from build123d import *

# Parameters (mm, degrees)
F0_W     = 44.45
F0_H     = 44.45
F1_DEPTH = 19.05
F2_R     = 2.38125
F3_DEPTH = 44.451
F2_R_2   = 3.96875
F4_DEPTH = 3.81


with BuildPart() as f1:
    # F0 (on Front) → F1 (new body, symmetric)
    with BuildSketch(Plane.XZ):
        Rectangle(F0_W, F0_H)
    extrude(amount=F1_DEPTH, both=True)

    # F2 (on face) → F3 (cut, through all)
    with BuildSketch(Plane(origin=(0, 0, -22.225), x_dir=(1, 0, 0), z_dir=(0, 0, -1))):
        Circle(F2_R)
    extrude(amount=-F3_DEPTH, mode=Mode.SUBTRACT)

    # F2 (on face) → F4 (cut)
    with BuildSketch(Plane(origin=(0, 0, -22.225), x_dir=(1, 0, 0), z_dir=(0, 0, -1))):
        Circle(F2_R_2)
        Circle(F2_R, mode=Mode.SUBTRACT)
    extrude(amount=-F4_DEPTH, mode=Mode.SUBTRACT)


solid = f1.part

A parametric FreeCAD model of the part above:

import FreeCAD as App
import Part
import Sketcher
from FreeCAD import Vector
Q = App.Units.Quantity

doc = App.newDocument("Part")
params = doc.addObject("Spreadsheet::Sheet", "Params")
for row, (alias, value) in enumerate([
    ("sketch1_width", "1.75 in"),
    ("pad1_length", "1.5 in"),
    ("sketch2_diameter", "0.1875 in"),
    ("sketch3_diameter", "0.3125 in"),
    ("sketch3_diameter2", "0.1875 in"),
    ("pocket2_length", "0.15 in"),
], start=1):
    params.set(f"A{row}", alias)
    params.set(f"B{row}", "=" + value)
    params.setAlias(f"B{row}", alias)

body = doc.addObject("PartDesign::Body", "Body")

# Sketch on XZ plane
sketch1 = body.newObject("Sketcher::SketchObject", "Sketch")
sketch1.AttachmentSupport = (doc.getObject("XZ_Plane"), [""])
sketch1.MapMode = "FlatFace"
sketch1.addGeometry([
    Part.LineSegment(Vector(-22, 22, 0), Vector(-22, -22, 0)),
    Part.LineSegment(Vector(-22, -22, 0), Vector(22, -22, 0)),
    Part.LineSegment(Vector(22, -22, 0), Vector(22, 22, 0)),
    Part.LineSegment(Vector(22, 22, 0), Vector(-22, 22, 0)),
], False)
sketch1.addConstraint([
    Sketcher.Constraint("Coincident", 0, 2, 1, 1),
    Sketcher.Constraint("Coincident", 1, 2, 2, 1),
    Sketcher.Constraint("Coincident", 2, 2, 3, 1),
    Sketcher.Constraint("Coincident", 3, 2, 0, 1),
    Sketcher.Constraint("Vertical", 0),
    Sketcher.Constraint("Horizontal", 1),
    Sketcher.Constraint("Vertical", 2),
    Sketcher.Constraint("Horizontal", 3),
    Sketcher.Constraint("Symmetric", 0, 2, 2, 2, -1, 1),
    Sketcher.Constraint("Equal", 3, 0),
    Sketcher.Constraint("DistanceX", 1, 1, 1, 2, Q("1.75 in")),
])
sketch1.setExpression("Constraints[10]", "Params.sketch1_width")
pad1 = body.newObject("PartDesign::Pad", "Pad")
pad1.Profile = sketch1
pad1.setExpression("Length", "Params.pad1_length")
pad1.Midplane = True

# Sketch on XY plane
sketch2 = body.newObject("Sketcher::SketchObject", "Sketch001")
sketch2.AttachmentSupport = (doc.getObject("XY_Plane"), [""])
sketch2.MapMode = "FlatFace"
sketch2.AttachmentOffset = App.Placement(Vector(0, 0, -0.875 * 25.4), App.Rotation())
sketch2.addGeometry(Part.Circle(Vector(0, 0, 0), Vector(0, 0, 1), 2.4), False)
sketch2.addConstraint([
    Sketcher.Constraint("Coincident", 0, 3, -1, 1),
    Sketcher.Constraint("Diameter", 0, Q("0.1875 in")),
])
sketch2.setExpression("Constraints[1]", "Params.sketch2_diameter")
pocket1 = body.newObject("PartDesign::Pocket", "Pocket")
pocket1.Profile = sketch2
pocket1.Type = "ThroughAll"
pocket1.Reversed = True

# Sketch on XY plane
sketch3 = body.newObject("Sketcher::SketchObject", "Sketch002")
sketch3.AttachmentSupport = (doc.getObject("XY_Plane"), [""])
sketch3.MapMode = "FlatFace"
sketch3.AttachmentOffset = App.Placement(Vector(0, 0, -0.875 * 25.4), App.Rotation())
sketch3.addGeometry([
    Part.Circle(Vector(0, 0, 0), Vector(0, 0, 1), 4),
    Part.Circle(Vector(0, 0, 0), Vector(0, 0, 1), 2.4),
], False)
sketch3.addConstraint([
    Sketcher.Constraint("Coincident", 0, 3, -1, 1),
    Sketcher.Constraint("Coincident", 1, 3, -1, 1),
    Sketcher.Constraint("Diameter", 0, Q("0.3125 in")),
    Sketcher.Constraint("Diameter", 1, Q("0.1875 in")),
])
sketch3.setExpression("Constraints[2]", "Params.sketch3_diameter")
sketch3.setExpression("Constraints[3]", "Params.sketch3_diameter2")
pocket2 = body.newObject("PartDesign::Pocket", "Pocket001")
pocket2.Profile = sketch3
pocket2.setExpression("Length", "Params.pocket2_length")
pocket2.Reversed = True

doc.recompute()
